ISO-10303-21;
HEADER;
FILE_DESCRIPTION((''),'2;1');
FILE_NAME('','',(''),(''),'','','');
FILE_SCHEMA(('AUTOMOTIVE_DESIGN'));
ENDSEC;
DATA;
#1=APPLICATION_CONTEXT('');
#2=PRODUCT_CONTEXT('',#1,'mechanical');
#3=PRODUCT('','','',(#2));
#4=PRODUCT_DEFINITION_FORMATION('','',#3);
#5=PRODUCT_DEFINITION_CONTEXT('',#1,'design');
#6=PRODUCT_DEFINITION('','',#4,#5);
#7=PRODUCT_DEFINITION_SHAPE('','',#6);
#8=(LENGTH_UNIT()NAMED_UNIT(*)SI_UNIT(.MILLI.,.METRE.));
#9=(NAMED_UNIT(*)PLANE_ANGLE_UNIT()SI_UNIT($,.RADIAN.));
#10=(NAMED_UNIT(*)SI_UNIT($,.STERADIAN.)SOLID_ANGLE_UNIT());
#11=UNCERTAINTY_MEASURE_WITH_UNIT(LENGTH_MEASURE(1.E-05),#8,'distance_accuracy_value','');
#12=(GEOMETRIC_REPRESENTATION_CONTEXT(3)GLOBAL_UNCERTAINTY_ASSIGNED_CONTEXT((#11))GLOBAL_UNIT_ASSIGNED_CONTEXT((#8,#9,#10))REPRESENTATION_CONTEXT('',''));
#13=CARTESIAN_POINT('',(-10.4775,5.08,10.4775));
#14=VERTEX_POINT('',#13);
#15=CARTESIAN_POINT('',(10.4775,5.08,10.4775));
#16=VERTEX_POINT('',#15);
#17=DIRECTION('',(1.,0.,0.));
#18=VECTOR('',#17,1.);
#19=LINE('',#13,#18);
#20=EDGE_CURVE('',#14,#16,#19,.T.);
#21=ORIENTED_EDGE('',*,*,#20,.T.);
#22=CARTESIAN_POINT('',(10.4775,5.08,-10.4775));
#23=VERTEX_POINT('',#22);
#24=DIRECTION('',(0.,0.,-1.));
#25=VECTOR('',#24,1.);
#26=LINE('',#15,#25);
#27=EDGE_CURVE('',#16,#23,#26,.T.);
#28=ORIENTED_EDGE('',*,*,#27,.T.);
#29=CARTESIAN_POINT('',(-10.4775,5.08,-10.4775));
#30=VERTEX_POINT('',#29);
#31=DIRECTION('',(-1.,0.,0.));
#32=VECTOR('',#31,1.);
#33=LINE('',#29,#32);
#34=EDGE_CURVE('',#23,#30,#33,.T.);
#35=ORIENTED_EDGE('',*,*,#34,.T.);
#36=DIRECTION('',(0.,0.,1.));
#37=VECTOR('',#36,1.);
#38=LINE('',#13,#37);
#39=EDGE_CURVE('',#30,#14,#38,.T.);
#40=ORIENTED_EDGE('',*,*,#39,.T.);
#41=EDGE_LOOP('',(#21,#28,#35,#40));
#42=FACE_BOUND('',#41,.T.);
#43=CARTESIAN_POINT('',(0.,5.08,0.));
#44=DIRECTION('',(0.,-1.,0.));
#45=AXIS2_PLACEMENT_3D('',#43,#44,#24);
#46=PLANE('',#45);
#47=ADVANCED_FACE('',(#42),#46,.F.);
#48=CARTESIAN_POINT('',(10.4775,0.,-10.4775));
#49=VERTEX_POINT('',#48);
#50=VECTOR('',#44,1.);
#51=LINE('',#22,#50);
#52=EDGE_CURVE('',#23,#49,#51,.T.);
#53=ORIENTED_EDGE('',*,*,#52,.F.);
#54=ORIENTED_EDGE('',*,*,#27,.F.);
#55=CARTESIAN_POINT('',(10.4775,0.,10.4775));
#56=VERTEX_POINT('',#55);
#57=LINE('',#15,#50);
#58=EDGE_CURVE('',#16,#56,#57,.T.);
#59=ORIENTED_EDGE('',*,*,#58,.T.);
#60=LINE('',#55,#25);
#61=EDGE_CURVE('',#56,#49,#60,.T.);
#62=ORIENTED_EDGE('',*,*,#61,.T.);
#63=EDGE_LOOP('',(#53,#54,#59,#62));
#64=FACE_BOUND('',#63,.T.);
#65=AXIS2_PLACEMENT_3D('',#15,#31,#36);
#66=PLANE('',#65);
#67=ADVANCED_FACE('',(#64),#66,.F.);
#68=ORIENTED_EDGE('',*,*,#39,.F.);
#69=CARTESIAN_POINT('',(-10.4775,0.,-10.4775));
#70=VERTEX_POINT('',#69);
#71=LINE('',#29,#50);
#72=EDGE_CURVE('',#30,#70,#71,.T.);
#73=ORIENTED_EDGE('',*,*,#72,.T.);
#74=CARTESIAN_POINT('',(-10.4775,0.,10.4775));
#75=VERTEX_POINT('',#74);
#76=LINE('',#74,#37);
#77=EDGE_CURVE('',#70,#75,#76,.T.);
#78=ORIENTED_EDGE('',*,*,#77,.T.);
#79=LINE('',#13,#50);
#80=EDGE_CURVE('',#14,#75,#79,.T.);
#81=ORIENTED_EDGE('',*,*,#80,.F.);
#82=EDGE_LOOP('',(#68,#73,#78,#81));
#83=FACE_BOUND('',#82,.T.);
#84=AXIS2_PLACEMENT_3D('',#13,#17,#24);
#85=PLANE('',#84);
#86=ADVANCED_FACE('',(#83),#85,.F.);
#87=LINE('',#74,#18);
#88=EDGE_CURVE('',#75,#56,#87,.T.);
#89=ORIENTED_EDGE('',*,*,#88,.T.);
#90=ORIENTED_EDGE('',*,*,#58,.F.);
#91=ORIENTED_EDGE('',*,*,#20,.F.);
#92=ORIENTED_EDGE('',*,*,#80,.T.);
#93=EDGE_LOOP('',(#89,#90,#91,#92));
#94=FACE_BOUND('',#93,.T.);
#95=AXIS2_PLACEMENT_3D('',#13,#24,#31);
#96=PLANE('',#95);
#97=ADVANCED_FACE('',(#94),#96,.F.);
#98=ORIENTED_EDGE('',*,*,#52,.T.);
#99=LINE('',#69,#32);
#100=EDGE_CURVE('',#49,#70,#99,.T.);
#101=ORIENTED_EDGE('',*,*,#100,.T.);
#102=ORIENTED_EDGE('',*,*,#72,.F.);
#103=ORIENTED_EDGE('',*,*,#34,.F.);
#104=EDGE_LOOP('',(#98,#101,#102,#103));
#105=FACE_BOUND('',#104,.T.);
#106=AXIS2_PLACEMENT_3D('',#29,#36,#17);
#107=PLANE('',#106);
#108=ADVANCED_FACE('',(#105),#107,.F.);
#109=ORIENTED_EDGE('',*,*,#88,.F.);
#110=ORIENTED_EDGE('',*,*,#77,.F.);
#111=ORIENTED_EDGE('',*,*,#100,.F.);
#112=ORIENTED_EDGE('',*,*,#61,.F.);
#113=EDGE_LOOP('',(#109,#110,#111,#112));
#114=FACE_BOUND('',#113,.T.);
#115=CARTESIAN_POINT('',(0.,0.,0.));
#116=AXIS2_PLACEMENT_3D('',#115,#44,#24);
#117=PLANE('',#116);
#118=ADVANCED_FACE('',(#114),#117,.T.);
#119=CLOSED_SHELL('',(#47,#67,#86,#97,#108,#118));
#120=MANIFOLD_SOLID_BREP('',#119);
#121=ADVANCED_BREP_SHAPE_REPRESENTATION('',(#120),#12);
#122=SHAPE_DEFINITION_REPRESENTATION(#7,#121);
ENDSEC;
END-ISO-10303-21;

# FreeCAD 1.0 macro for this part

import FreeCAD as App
import Part
import Sketcher
Q = App.Units.Quantity

doc = App.newDocument("Part")
body = doc.addObject("PartDesign::Body", "Body")

sketch1 = body.newObject("Sketcher::SketchObject", "Sketch")
sketch1.AttachmentSupport = (doc.getObject("XZ_Plane"), [""])
sketch1.MapMode = "FlatFace"
sketch1.addGeometry([
    Part.LineSegment(App.Vector(-10, -10, 0), App.Vector(-10, 10, 0)),
    Part.LineSegment(App.Vector(-10, 10, 0), App.Vector(10, 10, 0)),
    Part.LineSegment(App.Vector(10, 10, 0), App.Vector(10, -10, 0)),
    Part.LineSegment(App.Vector(10, -10, 0), App.Vector(-10, -10, 0)),
], False)
sketch1.addConstraint([
    Sketcher.Constraint("Coincident", 0, 2, 1, 1),
    Sketcher.Constraint("Coincident", 1, 2, 2, 1),
    Sketcher.Constraint("Coincident", 2, 2, 3, 1),
    Sketcher.Constraint("Coincident", 3, 2, 0, 1),
    Sketcher.Constraint("Vertical", 0),
    Sketcher.Constraint("Horizontal", 1),
    Sketcher.Constraint("Vertical", 2),
    Sketcher.Constraint("Horizontal", 3),
    Sketcher.Constraint("Symmetric", 0, 2, 2, 2, -1, 1),
    Sketcher.Constraint("Equal", 3, 0),
    Sketcher.Constraint("DistanceX", 1, 1, 1, 2, Q("0.825 in")),
])
pad1 = body.newObject("PartDesign::Pad", "Pad")
pad1.Profile = sketch1
pad1.Length = Q("0.2 in")
pad1.Reversed = True

doc.recompute()
